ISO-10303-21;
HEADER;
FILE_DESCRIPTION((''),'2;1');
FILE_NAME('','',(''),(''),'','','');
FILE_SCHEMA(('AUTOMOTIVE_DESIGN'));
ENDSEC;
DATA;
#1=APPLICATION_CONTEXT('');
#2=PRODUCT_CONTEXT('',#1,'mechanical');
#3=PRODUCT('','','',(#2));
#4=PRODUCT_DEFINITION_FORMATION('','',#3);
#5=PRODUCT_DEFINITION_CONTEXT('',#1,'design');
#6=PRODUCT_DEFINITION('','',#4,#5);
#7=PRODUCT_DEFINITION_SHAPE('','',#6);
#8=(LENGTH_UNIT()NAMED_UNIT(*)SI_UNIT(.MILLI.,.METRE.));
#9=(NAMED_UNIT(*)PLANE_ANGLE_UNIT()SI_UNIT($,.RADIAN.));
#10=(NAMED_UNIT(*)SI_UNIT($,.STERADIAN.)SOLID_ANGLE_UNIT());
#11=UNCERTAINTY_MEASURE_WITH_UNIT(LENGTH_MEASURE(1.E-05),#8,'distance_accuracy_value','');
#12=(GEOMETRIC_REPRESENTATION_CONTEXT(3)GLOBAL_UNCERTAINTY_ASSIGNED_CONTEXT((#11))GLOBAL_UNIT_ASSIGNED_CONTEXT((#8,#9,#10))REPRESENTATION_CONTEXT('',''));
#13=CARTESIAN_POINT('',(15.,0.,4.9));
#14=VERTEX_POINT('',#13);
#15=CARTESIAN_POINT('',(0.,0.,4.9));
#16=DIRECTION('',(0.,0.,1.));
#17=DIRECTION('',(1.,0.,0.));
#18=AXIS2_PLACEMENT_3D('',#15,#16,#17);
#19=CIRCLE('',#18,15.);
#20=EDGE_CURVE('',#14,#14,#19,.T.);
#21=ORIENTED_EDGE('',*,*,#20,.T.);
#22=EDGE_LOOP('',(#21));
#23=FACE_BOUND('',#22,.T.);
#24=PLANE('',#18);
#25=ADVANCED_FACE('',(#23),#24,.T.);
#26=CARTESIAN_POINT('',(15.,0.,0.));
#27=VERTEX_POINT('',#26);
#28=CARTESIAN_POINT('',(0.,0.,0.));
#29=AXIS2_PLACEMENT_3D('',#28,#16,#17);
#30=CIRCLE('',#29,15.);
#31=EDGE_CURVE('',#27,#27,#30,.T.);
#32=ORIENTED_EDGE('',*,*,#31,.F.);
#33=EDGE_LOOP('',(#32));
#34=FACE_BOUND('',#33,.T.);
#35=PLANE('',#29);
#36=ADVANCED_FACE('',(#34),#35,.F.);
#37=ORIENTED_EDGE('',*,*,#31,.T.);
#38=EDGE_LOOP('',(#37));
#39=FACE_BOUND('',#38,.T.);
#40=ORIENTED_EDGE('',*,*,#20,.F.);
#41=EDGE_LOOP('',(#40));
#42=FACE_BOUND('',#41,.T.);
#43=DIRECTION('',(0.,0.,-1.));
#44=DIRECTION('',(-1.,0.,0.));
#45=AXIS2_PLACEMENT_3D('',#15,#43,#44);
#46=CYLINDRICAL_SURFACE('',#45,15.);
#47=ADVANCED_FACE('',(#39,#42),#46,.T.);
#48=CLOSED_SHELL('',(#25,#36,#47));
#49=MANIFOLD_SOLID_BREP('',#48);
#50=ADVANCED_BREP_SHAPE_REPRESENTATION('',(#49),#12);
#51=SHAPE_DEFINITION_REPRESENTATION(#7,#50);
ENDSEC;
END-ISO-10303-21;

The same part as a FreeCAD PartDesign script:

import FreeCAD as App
import Part
import Sketcher

V = App.Vector
Q = App.Units.Quantity

doc = App.newDocument("Part")
params = doc.addObject("Spreadsheet::Sheet", "Params")
for row, (alias, value) in enumerate([
    ("sketch1_diameter", "30 mm"),
    ("pad1_length", "4.9 mm"),
], start=1):
    params.set(f"A{row}", alias)
    params.set(f"B{row}", "=" + value)
    params.setAlias(f"B{row}", alias)

body = doc.addObject("PartDesign::Body", "Body")

sketch1 = body.newObject("Sketcher::SketchObject", "Sketch")
sketch1.AttachmentSupport = (doc.getObject("XY_Plane"), [""])
sketch1.MapMode = "FlatFace"
sketch1.addGeometry(Part.Circle(V(0, 0, 0), V(0, 0, 1), 15), False)
sketch1.addConstraint([
    Sketcher.Constraint("Coincident", 0, 3, -1, 1),
    Sketcher.Constraint("Diameter", 0, Q("30 mm")),
])
sketch1.setExpression("Constraints[1]", "Params.sketch1_diameter")
pad1 = body.newObject("PartDesign::Pad", "Pad")
pad1.Profile = sketch1
pad1.setExpression("Length", "Params.pad1_length")

doc.recompute()
